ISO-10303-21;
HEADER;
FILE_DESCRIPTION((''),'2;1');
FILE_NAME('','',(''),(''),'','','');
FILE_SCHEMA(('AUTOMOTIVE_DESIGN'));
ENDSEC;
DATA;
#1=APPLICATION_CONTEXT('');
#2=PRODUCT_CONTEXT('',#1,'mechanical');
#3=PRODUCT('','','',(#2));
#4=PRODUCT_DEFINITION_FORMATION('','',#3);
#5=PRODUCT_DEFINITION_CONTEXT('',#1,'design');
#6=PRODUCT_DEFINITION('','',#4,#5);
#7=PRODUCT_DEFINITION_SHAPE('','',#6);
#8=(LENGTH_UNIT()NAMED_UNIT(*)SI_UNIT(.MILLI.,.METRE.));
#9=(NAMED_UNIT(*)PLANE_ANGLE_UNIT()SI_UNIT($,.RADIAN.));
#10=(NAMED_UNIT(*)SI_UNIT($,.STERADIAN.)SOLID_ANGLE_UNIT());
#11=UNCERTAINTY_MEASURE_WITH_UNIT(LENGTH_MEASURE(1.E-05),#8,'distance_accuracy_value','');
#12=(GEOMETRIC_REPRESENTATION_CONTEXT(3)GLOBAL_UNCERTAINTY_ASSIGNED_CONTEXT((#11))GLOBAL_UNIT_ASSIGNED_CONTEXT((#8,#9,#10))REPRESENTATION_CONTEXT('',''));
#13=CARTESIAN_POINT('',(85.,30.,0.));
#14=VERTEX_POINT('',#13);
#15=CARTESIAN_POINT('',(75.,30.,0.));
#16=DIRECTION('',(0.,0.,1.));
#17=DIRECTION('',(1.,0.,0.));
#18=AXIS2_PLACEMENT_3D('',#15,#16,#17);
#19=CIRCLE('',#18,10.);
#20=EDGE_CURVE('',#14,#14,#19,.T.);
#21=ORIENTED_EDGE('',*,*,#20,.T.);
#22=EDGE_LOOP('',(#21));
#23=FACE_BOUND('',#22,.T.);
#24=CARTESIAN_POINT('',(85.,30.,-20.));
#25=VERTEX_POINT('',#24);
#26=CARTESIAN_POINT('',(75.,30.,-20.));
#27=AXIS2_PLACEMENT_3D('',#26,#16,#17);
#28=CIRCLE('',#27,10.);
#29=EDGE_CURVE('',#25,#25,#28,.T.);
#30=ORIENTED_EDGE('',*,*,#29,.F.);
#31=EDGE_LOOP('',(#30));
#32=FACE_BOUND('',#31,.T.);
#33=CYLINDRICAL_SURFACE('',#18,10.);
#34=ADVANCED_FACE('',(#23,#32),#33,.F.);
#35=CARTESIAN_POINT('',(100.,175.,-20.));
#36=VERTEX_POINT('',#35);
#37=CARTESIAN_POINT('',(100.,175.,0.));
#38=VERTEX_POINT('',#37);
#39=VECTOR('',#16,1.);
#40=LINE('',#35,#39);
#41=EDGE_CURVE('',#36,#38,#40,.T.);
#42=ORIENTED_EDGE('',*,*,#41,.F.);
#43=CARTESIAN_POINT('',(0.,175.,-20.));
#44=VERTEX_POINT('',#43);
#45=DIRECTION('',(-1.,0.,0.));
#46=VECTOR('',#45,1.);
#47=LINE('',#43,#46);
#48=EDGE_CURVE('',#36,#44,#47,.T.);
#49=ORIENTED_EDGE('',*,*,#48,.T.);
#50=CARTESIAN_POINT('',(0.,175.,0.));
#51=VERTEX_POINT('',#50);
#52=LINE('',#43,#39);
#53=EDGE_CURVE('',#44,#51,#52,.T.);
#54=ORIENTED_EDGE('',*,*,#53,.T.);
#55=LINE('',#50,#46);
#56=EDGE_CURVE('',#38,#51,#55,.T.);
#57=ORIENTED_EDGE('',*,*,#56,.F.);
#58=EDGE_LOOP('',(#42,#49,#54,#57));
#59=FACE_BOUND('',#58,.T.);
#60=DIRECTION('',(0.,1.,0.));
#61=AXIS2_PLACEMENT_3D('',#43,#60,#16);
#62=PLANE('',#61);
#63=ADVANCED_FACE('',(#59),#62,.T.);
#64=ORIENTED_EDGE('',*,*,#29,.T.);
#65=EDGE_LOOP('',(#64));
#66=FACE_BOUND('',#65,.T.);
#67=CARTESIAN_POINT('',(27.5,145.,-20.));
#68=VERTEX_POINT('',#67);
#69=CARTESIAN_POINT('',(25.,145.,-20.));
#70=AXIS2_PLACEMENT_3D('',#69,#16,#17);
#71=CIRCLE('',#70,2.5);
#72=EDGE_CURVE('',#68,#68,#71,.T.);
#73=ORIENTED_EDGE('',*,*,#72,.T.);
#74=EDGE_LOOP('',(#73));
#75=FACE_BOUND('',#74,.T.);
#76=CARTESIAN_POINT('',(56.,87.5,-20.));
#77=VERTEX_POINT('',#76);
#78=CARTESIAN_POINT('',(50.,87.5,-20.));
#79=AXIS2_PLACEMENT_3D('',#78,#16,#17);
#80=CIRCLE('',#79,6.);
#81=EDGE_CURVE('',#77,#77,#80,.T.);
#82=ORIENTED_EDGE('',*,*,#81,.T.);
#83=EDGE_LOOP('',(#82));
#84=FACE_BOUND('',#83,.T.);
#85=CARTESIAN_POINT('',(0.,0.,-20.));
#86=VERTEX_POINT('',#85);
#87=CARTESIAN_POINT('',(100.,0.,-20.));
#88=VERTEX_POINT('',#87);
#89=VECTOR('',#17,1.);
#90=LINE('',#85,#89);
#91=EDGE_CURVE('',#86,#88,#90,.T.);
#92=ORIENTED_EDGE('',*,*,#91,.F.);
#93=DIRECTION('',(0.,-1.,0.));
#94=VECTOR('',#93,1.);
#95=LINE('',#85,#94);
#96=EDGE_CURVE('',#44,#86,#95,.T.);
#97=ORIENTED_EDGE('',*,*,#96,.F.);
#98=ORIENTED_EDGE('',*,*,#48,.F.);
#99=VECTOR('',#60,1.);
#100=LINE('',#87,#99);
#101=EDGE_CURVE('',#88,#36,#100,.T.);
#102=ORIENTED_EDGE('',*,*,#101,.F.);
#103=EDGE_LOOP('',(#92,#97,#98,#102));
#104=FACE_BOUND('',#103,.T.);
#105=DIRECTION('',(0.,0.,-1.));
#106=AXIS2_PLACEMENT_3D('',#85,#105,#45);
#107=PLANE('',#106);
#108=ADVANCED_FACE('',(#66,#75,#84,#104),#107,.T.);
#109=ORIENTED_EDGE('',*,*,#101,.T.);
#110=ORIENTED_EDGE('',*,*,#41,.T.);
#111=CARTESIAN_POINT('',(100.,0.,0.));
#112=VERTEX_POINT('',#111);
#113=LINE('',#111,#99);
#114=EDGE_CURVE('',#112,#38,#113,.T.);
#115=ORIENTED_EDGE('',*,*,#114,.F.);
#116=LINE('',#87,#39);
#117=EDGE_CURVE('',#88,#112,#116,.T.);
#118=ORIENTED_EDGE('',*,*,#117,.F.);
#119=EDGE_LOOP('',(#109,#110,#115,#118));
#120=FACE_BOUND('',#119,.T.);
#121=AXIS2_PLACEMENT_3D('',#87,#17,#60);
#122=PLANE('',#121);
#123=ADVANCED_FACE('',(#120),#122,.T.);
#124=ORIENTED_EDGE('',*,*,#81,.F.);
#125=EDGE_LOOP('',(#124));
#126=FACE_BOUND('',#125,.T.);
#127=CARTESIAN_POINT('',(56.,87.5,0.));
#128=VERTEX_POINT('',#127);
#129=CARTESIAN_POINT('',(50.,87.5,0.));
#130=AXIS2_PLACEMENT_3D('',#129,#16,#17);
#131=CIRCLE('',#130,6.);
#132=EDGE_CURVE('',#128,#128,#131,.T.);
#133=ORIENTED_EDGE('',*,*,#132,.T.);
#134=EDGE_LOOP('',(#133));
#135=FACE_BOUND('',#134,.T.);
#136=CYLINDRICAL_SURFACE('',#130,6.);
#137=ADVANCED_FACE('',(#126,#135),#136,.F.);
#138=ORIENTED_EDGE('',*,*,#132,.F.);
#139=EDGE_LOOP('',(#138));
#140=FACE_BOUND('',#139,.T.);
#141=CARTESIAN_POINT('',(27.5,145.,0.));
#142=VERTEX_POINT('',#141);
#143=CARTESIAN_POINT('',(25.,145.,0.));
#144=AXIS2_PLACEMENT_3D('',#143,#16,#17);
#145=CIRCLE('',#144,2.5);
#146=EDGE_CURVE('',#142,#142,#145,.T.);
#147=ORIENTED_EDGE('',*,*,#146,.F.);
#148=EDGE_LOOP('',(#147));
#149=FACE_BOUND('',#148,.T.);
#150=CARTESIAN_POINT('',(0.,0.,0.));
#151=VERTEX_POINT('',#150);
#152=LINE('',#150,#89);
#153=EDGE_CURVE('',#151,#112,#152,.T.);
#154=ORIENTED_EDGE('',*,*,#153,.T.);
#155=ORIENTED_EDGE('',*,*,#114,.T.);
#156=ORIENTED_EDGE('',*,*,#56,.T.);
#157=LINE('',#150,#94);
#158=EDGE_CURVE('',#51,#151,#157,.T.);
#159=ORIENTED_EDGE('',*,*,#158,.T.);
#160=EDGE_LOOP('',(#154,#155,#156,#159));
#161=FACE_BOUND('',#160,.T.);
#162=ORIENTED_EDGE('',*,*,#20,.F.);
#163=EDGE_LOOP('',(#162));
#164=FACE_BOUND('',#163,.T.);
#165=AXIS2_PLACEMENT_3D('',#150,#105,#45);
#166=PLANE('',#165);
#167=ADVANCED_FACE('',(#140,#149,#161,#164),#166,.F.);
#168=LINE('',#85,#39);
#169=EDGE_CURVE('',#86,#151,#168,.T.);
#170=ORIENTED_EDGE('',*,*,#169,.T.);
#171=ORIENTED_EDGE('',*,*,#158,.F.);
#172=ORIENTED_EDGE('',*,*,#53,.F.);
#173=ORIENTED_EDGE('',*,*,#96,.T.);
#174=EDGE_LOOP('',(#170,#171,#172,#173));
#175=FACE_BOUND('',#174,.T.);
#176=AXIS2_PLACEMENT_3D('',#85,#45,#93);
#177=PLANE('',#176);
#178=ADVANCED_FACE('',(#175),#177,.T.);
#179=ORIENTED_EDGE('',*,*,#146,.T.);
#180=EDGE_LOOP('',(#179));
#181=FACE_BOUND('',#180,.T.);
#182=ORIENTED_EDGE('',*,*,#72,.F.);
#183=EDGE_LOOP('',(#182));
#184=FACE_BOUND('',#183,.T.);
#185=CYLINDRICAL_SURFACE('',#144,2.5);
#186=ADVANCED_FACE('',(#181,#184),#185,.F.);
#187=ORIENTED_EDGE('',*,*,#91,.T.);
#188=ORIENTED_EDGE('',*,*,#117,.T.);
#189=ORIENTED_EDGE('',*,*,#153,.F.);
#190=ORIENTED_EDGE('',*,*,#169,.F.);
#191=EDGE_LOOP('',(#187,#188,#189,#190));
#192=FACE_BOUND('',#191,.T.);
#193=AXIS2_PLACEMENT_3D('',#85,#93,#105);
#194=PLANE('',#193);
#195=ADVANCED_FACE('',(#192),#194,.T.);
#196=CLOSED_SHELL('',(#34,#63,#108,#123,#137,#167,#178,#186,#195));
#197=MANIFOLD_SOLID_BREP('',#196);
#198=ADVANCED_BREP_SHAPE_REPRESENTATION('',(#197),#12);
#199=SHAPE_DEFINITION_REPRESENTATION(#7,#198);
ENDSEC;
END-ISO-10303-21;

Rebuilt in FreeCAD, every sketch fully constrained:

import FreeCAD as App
import Part
import Sketcher

doc = App.newDocument("Part")
params = doc.addObject("Spreadsheet::Sheet", "Params")
for row, (alias, value) in enumerate([
    ("sketch1_width", "100 mm"),
    ("sketch1_height", "175 mm"),
    ("pad1_length", "20 mm"),
    ("sketch2_diameter", "5 mm"),
    ("hole_diameter", "5 mm"),
    ("sketch3_diameter", "12 mm"),
    ("hole2_diameter", "12 mm"),
    ("sketch4_diameter", "20 mm"),
    ("hole3_diameter", "20 mm"),
], start=1):
    params.set(f"A{row}", alias)
    params.set(f"B{row}", "=" + value)
    params.setAlias(f"B{row}", alias)

body = doc.addObject("PartDesign::Body", "Body")

sketch1 = body.newObject("Sketcher::SketchObject", "Sketch")
sketch1.AttachmentSupport = (doc.getObject("XY_Plane"), [""])
sketch1.MapMode = "FlatFace"
sketch1.addGeometry(Part.LineSegment(App.Vector(0, 175, 0), App.Vector(0, 0, 0)), False)
sketch1.addGeometry(Part.LineSegment(App.Vector(0, 0, 0), App.Vector(100, 0, 0)), False)
sketch1.addGeometry(Part.LineSegment(App.Vector(100, 0, 0), App.Vector(100, 175, 0)), False)
sketch1.addGeometry(Part.LineSegment(App.Vector(100, 175, 0), App.Vector(0, 175, 0)), False)
sketch1.addConstraint(Sketcher.Constraint("Coincident", 0, 2, 1, 1))
sketch1.addConstraint(Sketcher.Constraint("Coincident", 1, 2, 2, 1))
sketch1.addConstraint(Sketcher.Constraint("Coincident", 2, 2, 3, 1))
sketch1.addConstraint(Sketcher.Constraint("Coincident", 3, 2, 0, 1))
sketch1.addConstraint(Sketcher.Constraint("Vertical", 0))
sketch1.addConstraint(Sketcher.Constraint("Horizontal", 1))
sketch1.addConstraint(Sketcher.Constraint("Vertical", 2))
sketch1.addConstraint(Sketcher.Constraint("Horizontal", 3))
sketch1.addConstraint(Sketcher.Constraint("Coincident", 0, 2, -1, 1))
sketch1.addConstraint(Sketcher.Constraint("DistanceX", 1, 1, 1, 2, 100.0))
sketch1.addConstraint(Sketcher.Constraint("DistanceY", 0, 2, 0, 1, 175.0))
sketch1.setExpression("Constraints[9]", "Params.sketch1_width")
sketch1.setExpression("Constraints[10]", "Params.sketch1_height")
pad1 = body.newObject("PartDesign::Pad", "Pad")
pad1.Profile = sketch1
pad1.setExpression("Length", "Params.pad1_length")
pad1.Reversed = True

sketch2 = body.newObject("Sketcher::SketchObject", "Sketch001")
sketch2.AttachmentSupport = (doc.getObject("XY_Plane"), [""])
sketch2.MapMode = "FlatFace"
sketch2.addGeometry(Part.Circle(App.Vector(25, 145, 0), App.Vector(0, 0, 1), 2.5), False)
sketch2.addConstraint(Sketcher.Constraint("Diameter", 0, 5.0))
sketch2.addConstraint(Sketcher.Constraint("DistanceX", -1, 1, 0, 3, 25.0))
sketch2.addConstraint(Sketcher.Constraint("DistanceY", -1, 1, 0, 3, 145.0))
sketch2.setExpression("Constraints[0]", "Params.sketch2_diameter")
doc.recompute()
hole = body.newObject("PartDesign::Hole", "Hole")
hole.Profile = sketch2
hole.ThreadType = "None"
hole.setExpression("Diameter", "Params.hole_diameter")
hole.DepthType = "ThroughAll"

sketch3 = body.newObject("Sketcher::SketchObject", "Sketch002")
sketch3.AttachmentSupport = (doc.getObject("XY_Plane"), [""])
sketch3.MapMode = "FlatFace"
sketch3.addGeometry(Part.Circle(App.Vector(50, 88, 0), App.Vector(0, 0, 1), 6), False)
sketch3.addConstraint(Sketcher.Constraint("Diameter", 0, 12.0))
sketch3.addConstraint(Sketcher.Constraint("DistanceX", -1, 1, 0, 3, 50.0))
sketch3.addConstraint(Sketcher.Constraint("DistanceY", -1, 1, 0, 3, 87.5))
sketch3.setExpression("Constraints[0]", "Params.sketch3_diameter")
doc.recompute()
hole2 = body.newObject("PartDesign::Hole", "Hole001")
hole2.Profile = sketch3
hole2.ThreadType = "None"
hole2.setExpression("Diameter", "Params.hole2_diameter")
hole2.DepthType = "ThroughAll"

sketch4 = body.newObject("Sketcher::SketchObject", "Sketch003")
sketch4.AttachmentSupport = (doc.getObject("XY_Plane"), [""])
sketch4.MapMode = "FlatFace"
sketch4.addGeometry(Part.Circle(App.Vector(75, 30, 0), App.Vector(0, 0, 1), 10), False)
sketch4.addConstraint(Sketcher.Constraint("Diameter", 0, 20.0))
sketch4.addConstraint(Sketcher.Constraint("DistanceX", -1, 1, 0, 3, 75.0))
sketch4.addConstraint(Sketcher.Constraint("DistanceY", -1, 1, 0, 3, 30.0))
sketch4.setExpression("Constraints[0]", "Params.sketch4_diameter")
doc.recompute()
hole3 = body.newObject("PartDesign::Hole", "Hole002")
hole3.Profile = sketch4
hole3.ThreadType = "None"
hole3.setExpression("Diameter", "Params.hole3_diameter")
hole3.DepthType = "ThroughAll"

doc.recompute()
